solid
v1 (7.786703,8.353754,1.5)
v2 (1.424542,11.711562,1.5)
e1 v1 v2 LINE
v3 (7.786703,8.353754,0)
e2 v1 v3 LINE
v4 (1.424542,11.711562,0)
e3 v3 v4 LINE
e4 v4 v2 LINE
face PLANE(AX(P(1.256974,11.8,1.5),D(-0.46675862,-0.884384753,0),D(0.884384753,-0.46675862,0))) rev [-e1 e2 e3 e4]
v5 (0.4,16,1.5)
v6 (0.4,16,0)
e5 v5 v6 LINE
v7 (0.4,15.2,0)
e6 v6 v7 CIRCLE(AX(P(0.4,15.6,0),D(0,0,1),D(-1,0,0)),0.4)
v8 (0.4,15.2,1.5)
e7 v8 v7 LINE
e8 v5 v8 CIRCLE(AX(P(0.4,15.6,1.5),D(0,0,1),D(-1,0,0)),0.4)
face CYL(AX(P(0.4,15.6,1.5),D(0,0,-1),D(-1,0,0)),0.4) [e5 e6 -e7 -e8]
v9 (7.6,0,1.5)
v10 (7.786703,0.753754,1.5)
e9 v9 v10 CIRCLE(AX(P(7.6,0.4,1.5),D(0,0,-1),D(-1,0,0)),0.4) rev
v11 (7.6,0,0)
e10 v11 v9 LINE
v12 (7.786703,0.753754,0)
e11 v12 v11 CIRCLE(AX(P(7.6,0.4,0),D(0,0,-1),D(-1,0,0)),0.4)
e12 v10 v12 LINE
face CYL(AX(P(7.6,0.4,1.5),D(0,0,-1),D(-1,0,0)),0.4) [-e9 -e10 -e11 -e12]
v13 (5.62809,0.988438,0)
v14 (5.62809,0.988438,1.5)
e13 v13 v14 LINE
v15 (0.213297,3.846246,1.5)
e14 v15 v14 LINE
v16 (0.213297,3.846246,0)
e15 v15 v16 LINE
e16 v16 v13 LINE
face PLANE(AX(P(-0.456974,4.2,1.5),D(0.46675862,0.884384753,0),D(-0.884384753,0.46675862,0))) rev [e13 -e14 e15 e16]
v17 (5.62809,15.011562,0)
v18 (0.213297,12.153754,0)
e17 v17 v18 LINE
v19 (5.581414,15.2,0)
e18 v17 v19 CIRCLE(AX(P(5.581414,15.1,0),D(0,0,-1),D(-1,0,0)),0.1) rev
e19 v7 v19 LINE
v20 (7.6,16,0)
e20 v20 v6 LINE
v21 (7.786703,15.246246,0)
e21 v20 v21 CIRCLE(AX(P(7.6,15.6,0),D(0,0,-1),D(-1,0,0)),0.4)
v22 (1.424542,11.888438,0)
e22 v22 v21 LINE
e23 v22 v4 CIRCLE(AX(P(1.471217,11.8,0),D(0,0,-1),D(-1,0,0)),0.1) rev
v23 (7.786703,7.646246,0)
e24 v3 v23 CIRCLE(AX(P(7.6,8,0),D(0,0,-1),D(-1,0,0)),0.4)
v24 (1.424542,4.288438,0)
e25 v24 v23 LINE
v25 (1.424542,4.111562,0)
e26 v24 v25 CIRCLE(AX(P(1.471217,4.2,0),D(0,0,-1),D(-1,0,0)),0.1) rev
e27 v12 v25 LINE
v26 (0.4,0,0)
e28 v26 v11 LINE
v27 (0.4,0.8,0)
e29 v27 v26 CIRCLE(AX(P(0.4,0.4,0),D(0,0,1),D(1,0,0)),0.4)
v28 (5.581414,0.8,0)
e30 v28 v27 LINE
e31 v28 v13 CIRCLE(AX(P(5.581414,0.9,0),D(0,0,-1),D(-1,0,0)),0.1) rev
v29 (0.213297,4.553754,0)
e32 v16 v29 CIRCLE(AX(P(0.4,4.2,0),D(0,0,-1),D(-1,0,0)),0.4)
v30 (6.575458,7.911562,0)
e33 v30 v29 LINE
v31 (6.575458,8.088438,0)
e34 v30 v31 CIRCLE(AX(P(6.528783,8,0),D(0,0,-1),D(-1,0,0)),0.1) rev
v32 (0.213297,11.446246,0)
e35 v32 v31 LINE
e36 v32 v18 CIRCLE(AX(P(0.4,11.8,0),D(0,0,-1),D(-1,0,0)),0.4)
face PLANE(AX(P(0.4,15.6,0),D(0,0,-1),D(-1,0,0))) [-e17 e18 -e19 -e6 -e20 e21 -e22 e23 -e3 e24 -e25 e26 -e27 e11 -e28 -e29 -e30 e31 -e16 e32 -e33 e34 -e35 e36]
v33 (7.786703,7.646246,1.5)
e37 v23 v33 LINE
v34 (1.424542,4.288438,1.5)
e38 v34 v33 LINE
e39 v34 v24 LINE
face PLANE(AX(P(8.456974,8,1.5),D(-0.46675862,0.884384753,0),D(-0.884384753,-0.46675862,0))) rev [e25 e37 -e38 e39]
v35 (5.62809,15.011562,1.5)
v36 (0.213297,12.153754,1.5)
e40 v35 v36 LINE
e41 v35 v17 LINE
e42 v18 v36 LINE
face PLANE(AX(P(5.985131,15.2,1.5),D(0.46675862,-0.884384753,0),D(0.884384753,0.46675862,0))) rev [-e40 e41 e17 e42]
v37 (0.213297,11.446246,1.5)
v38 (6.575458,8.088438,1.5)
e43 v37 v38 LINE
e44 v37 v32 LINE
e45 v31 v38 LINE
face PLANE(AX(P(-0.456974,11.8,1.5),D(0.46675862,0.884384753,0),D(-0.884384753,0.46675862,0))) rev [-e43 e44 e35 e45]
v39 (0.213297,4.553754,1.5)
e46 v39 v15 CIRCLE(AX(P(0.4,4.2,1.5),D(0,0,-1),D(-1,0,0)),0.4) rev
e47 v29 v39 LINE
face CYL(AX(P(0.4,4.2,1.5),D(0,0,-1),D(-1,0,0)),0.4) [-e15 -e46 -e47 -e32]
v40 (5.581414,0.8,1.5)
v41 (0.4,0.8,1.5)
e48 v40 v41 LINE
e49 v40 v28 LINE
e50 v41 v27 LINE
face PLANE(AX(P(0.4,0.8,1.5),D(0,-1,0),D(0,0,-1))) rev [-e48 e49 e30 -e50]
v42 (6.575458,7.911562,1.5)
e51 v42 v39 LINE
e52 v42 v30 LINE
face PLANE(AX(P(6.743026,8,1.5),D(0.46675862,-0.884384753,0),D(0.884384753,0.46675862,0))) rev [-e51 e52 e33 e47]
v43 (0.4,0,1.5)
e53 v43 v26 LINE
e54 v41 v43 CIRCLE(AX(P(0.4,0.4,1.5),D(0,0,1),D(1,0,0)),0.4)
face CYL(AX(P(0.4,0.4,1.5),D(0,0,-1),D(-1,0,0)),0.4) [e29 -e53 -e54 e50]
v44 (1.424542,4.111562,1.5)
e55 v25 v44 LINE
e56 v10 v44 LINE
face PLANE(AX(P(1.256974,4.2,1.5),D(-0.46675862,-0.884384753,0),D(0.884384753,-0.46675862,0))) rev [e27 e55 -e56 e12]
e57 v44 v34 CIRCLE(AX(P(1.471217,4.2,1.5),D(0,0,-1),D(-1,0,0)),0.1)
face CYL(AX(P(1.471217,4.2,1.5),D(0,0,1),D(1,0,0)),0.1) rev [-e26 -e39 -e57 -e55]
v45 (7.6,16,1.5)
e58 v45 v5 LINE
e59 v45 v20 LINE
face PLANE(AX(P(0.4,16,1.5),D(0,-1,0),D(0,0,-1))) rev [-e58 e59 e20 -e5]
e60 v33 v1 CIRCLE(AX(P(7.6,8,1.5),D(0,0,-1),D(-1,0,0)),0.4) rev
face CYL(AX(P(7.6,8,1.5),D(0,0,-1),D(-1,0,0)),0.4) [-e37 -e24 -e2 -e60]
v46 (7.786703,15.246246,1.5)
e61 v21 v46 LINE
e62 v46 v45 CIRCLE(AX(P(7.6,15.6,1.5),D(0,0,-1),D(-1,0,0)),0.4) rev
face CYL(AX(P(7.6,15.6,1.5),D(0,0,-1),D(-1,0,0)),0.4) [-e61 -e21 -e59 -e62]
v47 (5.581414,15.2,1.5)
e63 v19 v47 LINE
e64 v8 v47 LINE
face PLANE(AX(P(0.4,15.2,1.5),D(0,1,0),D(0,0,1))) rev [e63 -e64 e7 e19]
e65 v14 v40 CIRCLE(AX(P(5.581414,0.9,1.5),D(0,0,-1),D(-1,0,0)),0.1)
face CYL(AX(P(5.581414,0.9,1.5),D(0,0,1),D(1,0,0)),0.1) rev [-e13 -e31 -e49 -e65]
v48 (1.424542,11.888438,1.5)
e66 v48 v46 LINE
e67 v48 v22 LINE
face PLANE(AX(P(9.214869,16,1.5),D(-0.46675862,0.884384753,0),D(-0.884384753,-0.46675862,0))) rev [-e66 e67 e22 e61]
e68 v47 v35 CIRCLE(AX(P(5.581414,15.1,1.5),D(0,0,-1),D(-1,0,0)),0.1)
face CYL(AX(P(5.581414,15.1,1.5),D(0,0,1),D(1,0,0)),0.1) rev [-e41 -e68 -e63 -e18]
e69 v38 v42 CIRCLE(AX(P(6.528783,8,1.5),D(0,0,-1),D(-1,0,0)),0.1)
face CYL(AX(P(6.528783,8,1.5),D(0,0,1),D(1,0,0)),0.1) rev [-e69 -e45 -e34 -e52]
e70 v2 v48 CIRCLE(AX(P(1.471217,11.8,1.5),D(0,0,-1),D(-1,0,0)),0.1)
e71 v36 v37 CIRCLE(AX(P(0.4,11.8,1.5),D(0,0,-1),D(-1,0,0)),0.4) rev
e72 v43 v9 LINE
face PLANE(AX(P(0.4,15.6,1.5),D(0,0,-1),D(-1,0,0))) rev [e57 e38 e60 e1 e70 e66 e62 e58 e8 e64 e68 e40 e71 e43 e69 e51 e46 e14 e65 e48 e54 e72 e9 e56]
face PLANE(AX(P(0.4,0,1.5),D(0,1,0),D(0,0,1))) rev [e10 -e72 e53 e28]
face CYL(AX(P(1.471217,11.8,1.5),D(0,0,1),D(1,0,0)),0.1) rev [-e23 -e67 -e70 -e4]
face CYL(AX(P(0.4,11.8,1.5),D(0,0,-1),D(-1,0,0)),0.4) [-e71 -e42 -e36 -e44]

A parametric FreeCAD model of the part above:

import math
import FreeCAD as App
import Part
import Sketcher

V = App.Vector
Q = App.Units.Quantity


def edges_at(feature, points):
    """Names of the edges that pass closest to the given points."""
    edges = feature.Shape.Edges
    near = lambda p: min(range(len(edges)), key=lambda i: edges[i].distToShape(Part.Vertex(*p))[0])
    return sorted({f"Edge{near(p) + 1}" for p in points})

doc = App.newDocument("Part")
body = doc.addObject("PartDesign::Body", "Body")

sketch1 = body.newObject("Sketcher::SketchObject", "Sketch")
sketch1.AttachmentSupport = (doc.getObject("XY_Plane"), [""])
sketch1.MapMode = "FlatFace"
sketch1.addGeometry(Part.LineSegment(V(0.4, 15.2, 0), V(5.99, 15.2, 0)), False)
sketch1.addGeometry(Part.LineSegment(V(5.99, 15.2, 0), V(-0.46, 11.8, 0)), False)
sketch1.addGeometry(Part.LineSegment(V(-0.46, 11.8, 0), V(6.74, 8, 0)), False)
sketch1.addGeometry(Part.LineSegment(V(6.74, 8, 0), V(-0.46, 4.2, 0)), False)
sketch1.addGeometry(Part.LineSegment(V(-0.46, 4.2, 0), V(5.99, 0.8, 0)), False)
sketch1.addGeometry(Part.LineSegment(V(5.99, 0.8, 0), V(0.4, 0.8, 0)), False)
sketch1.addGeometry(Part.ArcOfCircle(Part.Circle(V(0.4, 0.4, 0), V(0, 0, 1), 0.4), math.radians(90), math.radians(270)), False)
sketch1.addGeometry(Part.LineSegment(V(0.4, 0, 0), V(9.21, 0, 0)), False)
sketch1.addGeometry(Part.LineSegment(V(9.21, 0, 0), V(1.26, 4.2, 0)), False)
sketch1.addGeometry(Part.LineSegment(V(1.26, 4.2, 0), V(8.46, 8, 0)), False)
sketch1.addGeometry(Part.LineSegment(V(8.46, 8, 0), V(1.26, 11.8, 0)), False)
sketch1.addGeometry(Part.LineSegment(V(1.26, 11.8, 0), V(9.21, 16, 0)), False)
sketch1.addGeometry(Part.LineSegment(V(9.21, 16, 0), V(0.4, 16, 0)), False)
sketch1.addGeometry(Part.ArcOfCircle(Part.Circle(V(0.4, 15.6, 0), V(0, 0, 1), 0.4), math.radians(90), math.radians(270)), False)
sketch1.addConstraint(Sketcher.Constraint("Coincident", 0, 2, 1, 1))
sketch1.addConstraint(Sketcher.Constraint("Coincident", 1, 2, 2, 1))
sketch1.addConstraint(Sketcher.Constraint("Coincident", 2, 2, 3, 1))
sketch1.addConstraint(Sketcher.Constraint("Coincident", 3, 2, 4, 1))
sketch1.addConstraint(Sketcher.Constraint("Coincident", 4, 2, 5, 1))
sketch1.addConstraint(Sketcher.Constraint("Tangent", 5, 2, 6, 1))
sketch1.addConstraint(Sketcher.Constraint("Tangent", 6, 2, 7, 1))
sketch1.addConstraint(Sketcher.Constraint("Coincident", 7, 2, 8, 1))
sketch1.addConstraint(Sketcher.Constraint("Coincident", 8, 2, 9, 1))
sketch1.addConstraint(Sketcher.Constraint("Coincident", 9, 2, 10, 1))
sketch1.addConstraint(Sketcher.Constraint("Coincident", 10, 2, 11, 1))
sketch1.addConstraint(Sketcher.Constraint("Coincident", 11, 2, 12, 1))
sketch1.addConstraint(Sketcher.Constraint("Tangent", 12, 2, 13, 1))
sketch1.addConstraint(Sketcher.Constraint("Tangent", 13, 2, 0, 1))
sketch1.addConstraint(Sketcher.Constraint("Horizontal", 0))
sketch1.addConstraint(Sketcher.Constraint("Horizontal", 5))
sketch1.addConstraint(Sketcher.Constraint("Horizontal", 7))
sketch1.addConstraint(Sketcher.Constraint("Horizontal", 12))
sketch1.addConstraint(Sketcher.Constraint("Equal", 6, 13))
sketch1.addConstraint(Sketcher.Constraint("PointOnObject", 6, 2, -1))
sketch1.addConstraint(Sketcher.Constraint("Parallel", 1, 3))
sketch1.addConstraint(Sketcher.Constraint("Parallel", 2, 4))
sketch1.addConstraint(Sketcher.Constraint("Parallel", 4, 8))
sketch1.addConstraint(Sketcher.Constraint("Parallel", 3, 9))
sketch1.addConstraint(Sketcher.Constraint("Parallel", 8, 10))
sketch1.addConstraint(Sketcher.Constraint("Parallel", 9, 11))
sketch1.addConstraint(Sketcher.Constraint("Horizontal", 3, 2, 8, 2))
sketch1.addConstraint(Sketcher.Constraint("Horizontal", 2, 2, 9, 2))
sketch1.addConstraint(Sketcher.Constraint("Horizontal", 1, 2, 10, 2))
sketch1.addConstraint(Sketcher.Constraint("Vertical", 6, 3, 13, 3))
sketch1.addConstraint(Sketcher.Constraint("Vertical", 1, 2, 3, 2))
sketch1.addConstraint(Sketcher.Constraint("Vertical", 0, 2, 4, 2))
sketch1.addConstraint(Sketcher.Constraint("Vertical", 7, 2, 11, 2))
sketch1.addConstraint(Sketcher.Constraint("Radius", 6, Q("0.4 mm")))
sketch1.addConstraint(Sketcher.Constraint("DistanceY", -1, 1, 2, 2, Q("8 mm")))
sketch1.addConstraint(Sketcher.Constraint("DistanceY", 3, 2, 0, 2, Q("11 mm")))
sketch1.addConstraint(Sketcher.Constraint("DistanceX", -1, 1, 6, 3, Q("0.4 mm")))
sketch1.addConstraint(Sketcher.Constraint("DistanceX", 1, 2, 2, 2, Q("7.2 mm")))
sketch1.addConstraint(Sketcher.Constraint("DistanceX", 0, 1, 0, 2, Q("5.585131 mm")))
sketch1.addConstraint(Sketcher.Constraint("DistanceX", 7, 1, 7, 2, Q("8.814869 mm")))
pad1 = body.newObject("PartDesign::Pad", "Pad")
pad1.Profile = sketch1
pad1.Length = 1.5
doc.recompute()

fillet = body.newObject("PartDesign::Fillet", "Fillet")
fillet.Base = (pad1, edges_at(pad1, [
    (9.215, 16, 0.75),
    (8.457, 8, 0.75),
    (9.215, 0, 0.75),
    (-0.457, 4.2, 0.75),
    (-0.457, 11.8, 0.75),
]))
fillet.Radius = 0.4
doc.recompute()

fillet2 = body.newObject("PartDesign::Fillet", "Fillet001")
fillet2.Base = (fillet, edges_at(fillet, [
    (1.257, 11.8, 0.75),
    (1.257, 4.2, 0.75),
    (5.985, 0.8, 0.75),
    (6.743, 8, 0.75),
    (5.985, 15.2, 0.75),
]))
fillet2.Radius = 0.1

doc.recompute()
